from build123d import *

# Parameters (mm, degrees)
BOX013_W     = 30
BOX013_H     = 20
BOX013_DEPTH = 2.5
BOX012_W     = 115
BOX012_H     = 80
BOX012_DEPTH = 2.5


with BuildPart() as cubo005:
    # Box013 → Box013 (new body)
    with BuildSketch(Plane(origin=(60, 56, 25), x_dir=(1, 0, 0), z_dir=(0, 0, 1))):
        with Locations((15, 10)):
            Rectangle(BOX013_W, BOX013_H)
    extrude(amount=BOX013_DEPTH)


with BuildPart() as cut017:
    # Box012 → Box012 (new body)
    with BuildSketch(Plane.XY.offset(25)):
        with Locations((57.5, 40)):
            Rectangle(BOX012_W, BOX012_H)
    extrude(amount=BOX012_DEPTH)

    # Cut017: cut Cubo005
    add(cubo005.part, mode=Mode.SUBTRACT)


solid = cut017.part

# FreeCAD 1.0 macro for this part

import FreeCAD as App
import Part
import Sketcher
from FreeCAD import Vector
Q = App.Units.Quantity

doc = App.newDocument("Part")
body = doc.addObject("PartDesign::Body", "Body")

# Sketch on XY plane
sketch1 = doc.addObject("Sketcher::SketchObject", "Sketch")
body.addObject(sketch1)
sketch1.AttachmentSupport = (doc.XY_Plane, [""])
sketch1.MapMode = "FlatFace"
sketch1.AttachmentOffset = App.Placement(Vector(0, 0, 25), App.Rotation())
sketch1.addGeometry([
    Part.LineSegment(Vector(60, 76, 0), Vector(60, 56, 0)),
    Part.LineSegment(Vector(60, 56, 0), Vector(90, 56, 0)),
    Part.LineSegment(Vector(90, 56, 0), Vector(90, 76, 0)),
    Part.LineSegment(Vector(90, 76, 0), Vector(60, 76, 0)),
], False)
sketch1.addConstraint([
    Sketcher.Constraint("Coincident", 0, 2, 1, 1),
    Sketcher.Constraint("Coincident", 1, 2, 2, 1),
    Sketcher.Constraint("Coincident", 2, 2, 3, 1),
    Sketcher.Constraint("Coincident", 3, 2, 0, 1),
    Sketcher.Constraint("Vertical", 0),
    Sketcher.Constraint("Horizontal", 1),
    Sketcher.Constraint("Vertical", 2),
    Sketcher.Constraint("Horizontal", 3),
    Sketcher.Constraint("DistanceX", 1, 1, 1, 2, Q("30 mm")),
    Sketcher.Constraint("DistanceY", 0, 2, 0, 1, Q("20 mm")),
    Sketcher.Constraint("DistanceX", -1, 1, 0, 2, Q("60 mm")),
    Sketcher.Constraint("DistanceY", -1, 1, 0, 2, Q("56 mm")),
])
pad1 = doc.addObject("PartDesign::Pad", "Pad")
body.addObject(pad1)
pad1.Profile = sketch1
pad1.Length = 2.5
body2 = doc.addObject("PartDesign::Body", "Body001")

# Sketch on XY plane
sketch2 = doc.addObject("Sketcher::SketchObject", "Sketch001")
body2.addObject(sketch2)
sketch2.AttachmentSupport = (doc.getObject("XY_Plane001"), [""])
sketch2.MapMode = "FlatFace"
sketch2.AttachmentOffset = App.Placement(Vector(0, 0, 25), App.Rotation())
sketch2.addGeometry([
    Part.LineSegment(Vector(0, 80, 0), Vector(0, 0, 0)),
    Part.LineSegment(Vector(0, 0, 0), Vector(115, 0, 0)),
    Part.LineSegment(Vector(115, 0, 0), Vector(115, 80, 0)),
    Part.LineSegment(Vector(115, 80, 0), Vector(0, 80, 0)),
], False)
sketch2.addConstraint([
    Sketcher.Constraint("Coincident", 0, 2, 1, 1),
    Sketcher.Constraint("Coincident", 1, 2, 2, 1),
    Sketcher.Constraint("Coincident", 2, 2, 3, 1),
    Sketcher.Constraint("Coincident", 3, 2, 0, 1),
    Sketcher.Constraint("Vertical", 0),
    Sketcher.Constraint("Horizontal", 1),
    Sketcher.Constraint("Vertical", 2),
    Sketcher.Constraint("Horizontal", 3),
    Sketcher.Constraint("Coincident", 0, 2, -1, 1),
    Sketcher.Constraint("DistanceX", 1, 1, 1, 2, Q("115 mm")),
    Sketcher.Constraint("DistanceY", 0, 2, 0, 1, Q("80 mm")),
])
pad2 = doc.addObject("PartDesign::Pad", "Pad001")
body2.addObject(pad2)
pad2.Profile = sketch2
pad2.Length = 2.5
doc.recompute()

boolean = doc.addObject("PartDesign::Boolean", "Boolean")
body2.addObject(boolean)
boolean.Type = "Cut"
boolean.addObjects([body])

doc.recompute()
